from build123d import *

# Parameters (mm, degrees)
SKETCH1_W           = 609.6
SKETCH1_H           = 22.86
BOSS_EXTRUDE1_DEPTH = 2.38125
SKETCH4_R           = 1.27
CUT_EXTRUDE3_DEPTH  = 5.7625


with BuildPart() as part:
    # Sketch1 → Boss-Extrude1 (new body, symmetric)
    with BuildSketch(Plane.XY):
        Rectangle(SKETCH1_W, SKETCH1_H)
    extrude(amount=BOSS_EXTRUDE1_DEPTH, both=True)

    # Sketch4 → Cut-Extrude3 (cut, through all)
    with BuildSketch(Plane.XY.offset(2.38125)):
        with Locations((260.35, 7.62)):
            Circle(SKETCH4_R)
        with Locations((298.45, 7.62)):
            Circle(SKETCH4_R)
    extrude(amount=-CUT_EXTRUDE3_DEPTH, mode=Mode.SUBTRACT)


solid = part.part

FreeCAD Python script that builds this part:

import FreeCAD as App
import Part
import Sketcher
Q = App.Units.Quantity

doc = App.newDocument("Part")
params = doc.addObject("Spreadsheet::Sheet", "Params")
for row, (alias, value) in enumerate([
    ("sketch1_width", "24 in"),
    ("sketch1_height", "0.9 in"),
    ("pad1_length", "0.1875 in"),
    ("sketch2_diameter", "0.1 in"),
], start=1):
    params.set(f"A{row}", alias)
    params.set(f"B{row}", "=" + value)
    params.setAlias(f"B{row}", alias)

body = doc.addObject("PartDesign::Body", "Body")

# Sketch on XY plane
sketch1 = doc.addObject("Sketcher::SketchObject", "Sketch")
body.addObject(sketch1)
sketch1.AttachmentSupport = (doc.XY_Plane, [""])
sketch1.MapMode = "FlatFace"
sketch1.addGeometry([
    Part.LineSegment(App.Vector(-304.8, 11.43, 0), App.Vector(-304.8, -11.43, 0)),
    Part.LineSegment(App.Vector(-304.8, -11.43, 0), App.Vector(304.8, -11.43, 0)),
    Part.LineSegment(App.Vector(304.8, -11.43, 0), App.Vector(304.8, 11.43, 0)),
    Part.LineSegment(App.Vector(304.8, 11.43, 0), App.Vector(-304.8, 11.43, 0)),
], False)
sketch1.addConstraint([
    Sketcher.Constraint("Coincident", 0, 2, 1, 1),
    Sketcher.Constraint("Coincident", 1, 2, 2, 1),
    Sketcher.Constraint("Coincident", 2, 2, 3, 1),
    Sketcher.Constraint("Coincident", 3, 2, 0, 1),
    Sketcher.Constraint("Vertical", 0),
    Sketcher.Constraint("Horizontal", 1),
    Sketcher.Constraint("Vertical", 2),
    Sketcher.Constraint("Horizontal", 3),
    Sketcher.Constraint("Symmetric", 0, 2, 2, 2, -1, 1),
    Sketcher.Constraint("DistanceX", 1, 1, 1, 2, Q("24 in")),
    Sketcher.Constraint("DistanceY", 0, 2, 0, 1, Q("0.9 in")),
])
sketch1.setExpression("Constraints[9]", "Params.sketch1_width")
sketch1.setExpression("Constraints[10]", "Params.sketch1_height")
pad1 = doc.addObject("PartDesign::Pad", "Pad")
body.addObject(pad1)
pad1.Profile = sketch1
pad1.setExpression("Length", "Params.pad1_length")
pad1.Midplane = True

# Sketch on XY plane
sketch2 = doc.addObject("Sketcher::SketchObject", "Sketch001")
body.addObject(sketch2)
sketch2.AttachmentSupport = (doc.XY_Plane, [""])
sketch2.MapMode = "FlatFace"
sketch2.AttachmentOffset = App.Placement(App.Vector(0, 0, 0.09375 * 25.4), App.Rotation())
sketch2.addGeometry([
    Part.Circle(App.Vector(260.35, 7.62, 0), App.Vector(0, 0, 1), 1.27),
    Part.Circle(App.Vector(298.45, 7.62, 0), App.Vector(0, 0, 1), 1.27),
], False)
sketch2.addConstraint([
    Sketcher.Constraint("Equal", 0, 1),
    Sketcher.Constraint("Horizontal", 0, 3, 1, 3),
    Sketcher.Constraint("Diameter", 0, Q("0.1 in")),
    Sketcher.Constraint("DistanceY", -1, 1, 0, 3, Q("0.3 in")),
    Sketcher.Constraint("DistanceX", 0, 3, 1, 3, Q("1.5 in")),
    Sketcher.Constraint("DistanceX", -1, 1, 0, 3, Q("10.25 in")),
])
sketch2.setExpression("Constraints[2]", "Params.sketch2_diameter")
pocket1 = doc.addObject("PartDesign::Pocket", "Pocket")
body.addObject(pocket1)
pocket1.Profile = sketch2
pocket1.Type = "ThroughAll"

doc.recompute()
